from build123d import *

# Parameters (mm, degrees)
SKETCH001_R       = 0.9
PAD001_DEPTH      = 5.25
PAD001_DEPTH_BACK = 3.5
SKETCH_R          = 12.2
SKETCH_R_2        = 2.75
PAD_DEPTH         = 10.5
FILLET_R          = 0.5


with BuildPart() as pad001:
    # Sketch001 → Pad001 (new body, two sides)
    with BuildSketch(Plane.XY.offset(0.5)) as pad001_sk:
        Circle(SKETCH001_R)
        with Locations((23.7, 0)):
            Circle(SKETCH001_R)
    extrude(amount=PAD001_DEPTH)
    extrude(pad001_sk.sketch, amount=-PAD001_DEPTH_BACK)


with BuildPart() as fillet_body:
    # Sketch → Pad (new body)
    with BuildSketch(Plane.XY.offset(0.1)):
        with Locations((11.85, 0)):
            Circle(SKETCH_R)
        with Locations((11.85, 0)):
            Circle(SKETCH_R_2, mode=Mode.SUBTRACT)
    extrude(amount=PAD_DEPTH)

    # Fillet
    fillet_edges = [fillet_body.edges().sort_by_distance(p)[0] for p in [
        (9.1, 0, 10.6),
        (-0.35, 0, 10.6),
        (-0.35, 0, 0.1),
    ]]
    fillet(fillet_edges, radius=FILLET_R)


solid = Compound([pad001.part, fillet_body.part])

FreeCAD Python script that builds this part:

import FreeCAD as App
import Part
import Sketcher
from FreeCAD import Vector
Q = App.Units.Quantity


def edges_at(feature, points):
    """Names of the edges that pass closest to the given points."""
    edges = feature.Shape.Edges
    near = lambda p: min(range(len(edges)), key=lambda i: edges[i].distToShape(Part.Vertex(*p))[0])
    return sorted({f"Edge{near(p) + 1}" for p in points})

doc = App.newDocument("Part")
params = doc.addObject("Spreadsheet::Sheet", "Params")
for row, (alias, value) in enumerate([
    ("sketch1_diameter", "1.8 mm"),
    ("pad1_length", "5.25 mm"),
    ("pad1_length2", "3.5 mm"),
    ("sketch2_diameter", "24.4 mm"),
    ("sketch2_diameter2", "5.5 mm"),
    ("pad2_length", "10.5 mm"),
    ("fillet_radius", "0.5 mm"),
], start=1):
    params.set(f"A{row}", alias)
    params.set(f"B{row}", "=" + value)
    params.setAlias(f"B{row}", alias)

body = doc.addObject("PartDesign::Body", "Body")
body.AllowCompound = True

# Sketch on XY plane
sketch1 = body.newObject("Sketcher::SketchObject", "Sketch")
sketch1.AttachmentSupport = (doc.getObject("XY_Plane"), [""])
sketch1.MapMode = "FlatFace"
sketch1.AttachmentOffset = App.Placement(Vector(0, 0, 0.5), App.Rotation())
sketch1.addGeometry(Part.Circle(Vector(0, 0, 0), Vector(0, 0, 1), 0.9), False)
sketch1.addGeometry(Part.Circle(Vector(23.7, 0, 0), Vector(0, 0, 1), 0.9), False)
sketch1.addConstraint(Sketcher.Constraint("Coincident", 0, 3, -1, 1))
sketch1.addConstraint(Sketcher.Constraint("Equal", 0, 1))
sketch1.addConstraint(Sketcher.Constraint("PointOnObject", 1, 3, -1))
sketch1.addConstraint(Sketcher.Constraint("Diameter", 0, Q("1.8 mm")))
sketch1.addConstraint(Sketcher.Constraint("DistanceX", -1, 1, 1, 3, Q("23.7 mm")))
sketch1.setExpression("Constraints[3]", "Params.sketch1_diameter")
pad1 = body.newObject("PartDesign::Pad", "Pad")
pad1.Profile = sketch1
pad1.Type = "TwoLengths"
pad1.setExpression("Length", "Params.pad1_length")
pad1.setExpression("Length2", "Params.pad1_length2")
body2 = doc.addObject("PartDesign::Body", "Body001")

# Sketch on XY plane
sketch2 = body2.newObject("Sketcher::SketchObject", "Sketch001")
sketch2.AttachmentSupport = (doc.getObject("XY_Plane001"), [""])
sketch2.MapMode = "FlatFace"
sketch2.AttachmentOffset = App.Placement(Vector(0, 0, 0.1), App.Rotation())
sketch2.addGeometry(Part.Circle(Vector(11.85, 0, 0), Vector(0, 0, 1), 12.2), False)
sketch2.addGeometry(Part.Circle(Vector(11.85, 0, 0), Vector(0, 0, 1), 2.75), False)
sketch2.addConstraint(Sketcher.Constraint("Coincident", 1, 3, 0, 3))
sketch2.addConstraint(Sketcher.Constraint("PointOnObject", 0, 3, -1))
sketch2.addConstraint(Sketcher.Constraint("Diameter", 0, Q("24.4 mm")))
sketch2.addConstraint(Sketcher.Constraint("Diameter", 1, Q("5.5 mm")))
sketch2.addConstraint(Sketcher.Constraint("DistanceX", -1, 1, 0, 3, Q("11.85 mm")))
sketch2.setExpression("Constraints[2]", "Params.sketch2_diameter")
sketch2.setExpression("Constraints[3]", "Params.sketch2_diameter2")
pad2 = body2.newObject("PartDesign::Pad", "Pad001")
pad2.Profile = sketch2
pad2.setExpression("Length", "Params.pad2_length")
doc.recompute()

fillet = body2.newObject("PartDesign::Fillet", "Fillet")
fillet.Base = (pad2, edges_at(pad2, [(9.1, 0, 10.6), (-0.35, 0, 10.6), (-0.35, 0, 0.1)]))
fillet.setExpression("Radius", "Params.fillet_radius")

doc.recompute()
